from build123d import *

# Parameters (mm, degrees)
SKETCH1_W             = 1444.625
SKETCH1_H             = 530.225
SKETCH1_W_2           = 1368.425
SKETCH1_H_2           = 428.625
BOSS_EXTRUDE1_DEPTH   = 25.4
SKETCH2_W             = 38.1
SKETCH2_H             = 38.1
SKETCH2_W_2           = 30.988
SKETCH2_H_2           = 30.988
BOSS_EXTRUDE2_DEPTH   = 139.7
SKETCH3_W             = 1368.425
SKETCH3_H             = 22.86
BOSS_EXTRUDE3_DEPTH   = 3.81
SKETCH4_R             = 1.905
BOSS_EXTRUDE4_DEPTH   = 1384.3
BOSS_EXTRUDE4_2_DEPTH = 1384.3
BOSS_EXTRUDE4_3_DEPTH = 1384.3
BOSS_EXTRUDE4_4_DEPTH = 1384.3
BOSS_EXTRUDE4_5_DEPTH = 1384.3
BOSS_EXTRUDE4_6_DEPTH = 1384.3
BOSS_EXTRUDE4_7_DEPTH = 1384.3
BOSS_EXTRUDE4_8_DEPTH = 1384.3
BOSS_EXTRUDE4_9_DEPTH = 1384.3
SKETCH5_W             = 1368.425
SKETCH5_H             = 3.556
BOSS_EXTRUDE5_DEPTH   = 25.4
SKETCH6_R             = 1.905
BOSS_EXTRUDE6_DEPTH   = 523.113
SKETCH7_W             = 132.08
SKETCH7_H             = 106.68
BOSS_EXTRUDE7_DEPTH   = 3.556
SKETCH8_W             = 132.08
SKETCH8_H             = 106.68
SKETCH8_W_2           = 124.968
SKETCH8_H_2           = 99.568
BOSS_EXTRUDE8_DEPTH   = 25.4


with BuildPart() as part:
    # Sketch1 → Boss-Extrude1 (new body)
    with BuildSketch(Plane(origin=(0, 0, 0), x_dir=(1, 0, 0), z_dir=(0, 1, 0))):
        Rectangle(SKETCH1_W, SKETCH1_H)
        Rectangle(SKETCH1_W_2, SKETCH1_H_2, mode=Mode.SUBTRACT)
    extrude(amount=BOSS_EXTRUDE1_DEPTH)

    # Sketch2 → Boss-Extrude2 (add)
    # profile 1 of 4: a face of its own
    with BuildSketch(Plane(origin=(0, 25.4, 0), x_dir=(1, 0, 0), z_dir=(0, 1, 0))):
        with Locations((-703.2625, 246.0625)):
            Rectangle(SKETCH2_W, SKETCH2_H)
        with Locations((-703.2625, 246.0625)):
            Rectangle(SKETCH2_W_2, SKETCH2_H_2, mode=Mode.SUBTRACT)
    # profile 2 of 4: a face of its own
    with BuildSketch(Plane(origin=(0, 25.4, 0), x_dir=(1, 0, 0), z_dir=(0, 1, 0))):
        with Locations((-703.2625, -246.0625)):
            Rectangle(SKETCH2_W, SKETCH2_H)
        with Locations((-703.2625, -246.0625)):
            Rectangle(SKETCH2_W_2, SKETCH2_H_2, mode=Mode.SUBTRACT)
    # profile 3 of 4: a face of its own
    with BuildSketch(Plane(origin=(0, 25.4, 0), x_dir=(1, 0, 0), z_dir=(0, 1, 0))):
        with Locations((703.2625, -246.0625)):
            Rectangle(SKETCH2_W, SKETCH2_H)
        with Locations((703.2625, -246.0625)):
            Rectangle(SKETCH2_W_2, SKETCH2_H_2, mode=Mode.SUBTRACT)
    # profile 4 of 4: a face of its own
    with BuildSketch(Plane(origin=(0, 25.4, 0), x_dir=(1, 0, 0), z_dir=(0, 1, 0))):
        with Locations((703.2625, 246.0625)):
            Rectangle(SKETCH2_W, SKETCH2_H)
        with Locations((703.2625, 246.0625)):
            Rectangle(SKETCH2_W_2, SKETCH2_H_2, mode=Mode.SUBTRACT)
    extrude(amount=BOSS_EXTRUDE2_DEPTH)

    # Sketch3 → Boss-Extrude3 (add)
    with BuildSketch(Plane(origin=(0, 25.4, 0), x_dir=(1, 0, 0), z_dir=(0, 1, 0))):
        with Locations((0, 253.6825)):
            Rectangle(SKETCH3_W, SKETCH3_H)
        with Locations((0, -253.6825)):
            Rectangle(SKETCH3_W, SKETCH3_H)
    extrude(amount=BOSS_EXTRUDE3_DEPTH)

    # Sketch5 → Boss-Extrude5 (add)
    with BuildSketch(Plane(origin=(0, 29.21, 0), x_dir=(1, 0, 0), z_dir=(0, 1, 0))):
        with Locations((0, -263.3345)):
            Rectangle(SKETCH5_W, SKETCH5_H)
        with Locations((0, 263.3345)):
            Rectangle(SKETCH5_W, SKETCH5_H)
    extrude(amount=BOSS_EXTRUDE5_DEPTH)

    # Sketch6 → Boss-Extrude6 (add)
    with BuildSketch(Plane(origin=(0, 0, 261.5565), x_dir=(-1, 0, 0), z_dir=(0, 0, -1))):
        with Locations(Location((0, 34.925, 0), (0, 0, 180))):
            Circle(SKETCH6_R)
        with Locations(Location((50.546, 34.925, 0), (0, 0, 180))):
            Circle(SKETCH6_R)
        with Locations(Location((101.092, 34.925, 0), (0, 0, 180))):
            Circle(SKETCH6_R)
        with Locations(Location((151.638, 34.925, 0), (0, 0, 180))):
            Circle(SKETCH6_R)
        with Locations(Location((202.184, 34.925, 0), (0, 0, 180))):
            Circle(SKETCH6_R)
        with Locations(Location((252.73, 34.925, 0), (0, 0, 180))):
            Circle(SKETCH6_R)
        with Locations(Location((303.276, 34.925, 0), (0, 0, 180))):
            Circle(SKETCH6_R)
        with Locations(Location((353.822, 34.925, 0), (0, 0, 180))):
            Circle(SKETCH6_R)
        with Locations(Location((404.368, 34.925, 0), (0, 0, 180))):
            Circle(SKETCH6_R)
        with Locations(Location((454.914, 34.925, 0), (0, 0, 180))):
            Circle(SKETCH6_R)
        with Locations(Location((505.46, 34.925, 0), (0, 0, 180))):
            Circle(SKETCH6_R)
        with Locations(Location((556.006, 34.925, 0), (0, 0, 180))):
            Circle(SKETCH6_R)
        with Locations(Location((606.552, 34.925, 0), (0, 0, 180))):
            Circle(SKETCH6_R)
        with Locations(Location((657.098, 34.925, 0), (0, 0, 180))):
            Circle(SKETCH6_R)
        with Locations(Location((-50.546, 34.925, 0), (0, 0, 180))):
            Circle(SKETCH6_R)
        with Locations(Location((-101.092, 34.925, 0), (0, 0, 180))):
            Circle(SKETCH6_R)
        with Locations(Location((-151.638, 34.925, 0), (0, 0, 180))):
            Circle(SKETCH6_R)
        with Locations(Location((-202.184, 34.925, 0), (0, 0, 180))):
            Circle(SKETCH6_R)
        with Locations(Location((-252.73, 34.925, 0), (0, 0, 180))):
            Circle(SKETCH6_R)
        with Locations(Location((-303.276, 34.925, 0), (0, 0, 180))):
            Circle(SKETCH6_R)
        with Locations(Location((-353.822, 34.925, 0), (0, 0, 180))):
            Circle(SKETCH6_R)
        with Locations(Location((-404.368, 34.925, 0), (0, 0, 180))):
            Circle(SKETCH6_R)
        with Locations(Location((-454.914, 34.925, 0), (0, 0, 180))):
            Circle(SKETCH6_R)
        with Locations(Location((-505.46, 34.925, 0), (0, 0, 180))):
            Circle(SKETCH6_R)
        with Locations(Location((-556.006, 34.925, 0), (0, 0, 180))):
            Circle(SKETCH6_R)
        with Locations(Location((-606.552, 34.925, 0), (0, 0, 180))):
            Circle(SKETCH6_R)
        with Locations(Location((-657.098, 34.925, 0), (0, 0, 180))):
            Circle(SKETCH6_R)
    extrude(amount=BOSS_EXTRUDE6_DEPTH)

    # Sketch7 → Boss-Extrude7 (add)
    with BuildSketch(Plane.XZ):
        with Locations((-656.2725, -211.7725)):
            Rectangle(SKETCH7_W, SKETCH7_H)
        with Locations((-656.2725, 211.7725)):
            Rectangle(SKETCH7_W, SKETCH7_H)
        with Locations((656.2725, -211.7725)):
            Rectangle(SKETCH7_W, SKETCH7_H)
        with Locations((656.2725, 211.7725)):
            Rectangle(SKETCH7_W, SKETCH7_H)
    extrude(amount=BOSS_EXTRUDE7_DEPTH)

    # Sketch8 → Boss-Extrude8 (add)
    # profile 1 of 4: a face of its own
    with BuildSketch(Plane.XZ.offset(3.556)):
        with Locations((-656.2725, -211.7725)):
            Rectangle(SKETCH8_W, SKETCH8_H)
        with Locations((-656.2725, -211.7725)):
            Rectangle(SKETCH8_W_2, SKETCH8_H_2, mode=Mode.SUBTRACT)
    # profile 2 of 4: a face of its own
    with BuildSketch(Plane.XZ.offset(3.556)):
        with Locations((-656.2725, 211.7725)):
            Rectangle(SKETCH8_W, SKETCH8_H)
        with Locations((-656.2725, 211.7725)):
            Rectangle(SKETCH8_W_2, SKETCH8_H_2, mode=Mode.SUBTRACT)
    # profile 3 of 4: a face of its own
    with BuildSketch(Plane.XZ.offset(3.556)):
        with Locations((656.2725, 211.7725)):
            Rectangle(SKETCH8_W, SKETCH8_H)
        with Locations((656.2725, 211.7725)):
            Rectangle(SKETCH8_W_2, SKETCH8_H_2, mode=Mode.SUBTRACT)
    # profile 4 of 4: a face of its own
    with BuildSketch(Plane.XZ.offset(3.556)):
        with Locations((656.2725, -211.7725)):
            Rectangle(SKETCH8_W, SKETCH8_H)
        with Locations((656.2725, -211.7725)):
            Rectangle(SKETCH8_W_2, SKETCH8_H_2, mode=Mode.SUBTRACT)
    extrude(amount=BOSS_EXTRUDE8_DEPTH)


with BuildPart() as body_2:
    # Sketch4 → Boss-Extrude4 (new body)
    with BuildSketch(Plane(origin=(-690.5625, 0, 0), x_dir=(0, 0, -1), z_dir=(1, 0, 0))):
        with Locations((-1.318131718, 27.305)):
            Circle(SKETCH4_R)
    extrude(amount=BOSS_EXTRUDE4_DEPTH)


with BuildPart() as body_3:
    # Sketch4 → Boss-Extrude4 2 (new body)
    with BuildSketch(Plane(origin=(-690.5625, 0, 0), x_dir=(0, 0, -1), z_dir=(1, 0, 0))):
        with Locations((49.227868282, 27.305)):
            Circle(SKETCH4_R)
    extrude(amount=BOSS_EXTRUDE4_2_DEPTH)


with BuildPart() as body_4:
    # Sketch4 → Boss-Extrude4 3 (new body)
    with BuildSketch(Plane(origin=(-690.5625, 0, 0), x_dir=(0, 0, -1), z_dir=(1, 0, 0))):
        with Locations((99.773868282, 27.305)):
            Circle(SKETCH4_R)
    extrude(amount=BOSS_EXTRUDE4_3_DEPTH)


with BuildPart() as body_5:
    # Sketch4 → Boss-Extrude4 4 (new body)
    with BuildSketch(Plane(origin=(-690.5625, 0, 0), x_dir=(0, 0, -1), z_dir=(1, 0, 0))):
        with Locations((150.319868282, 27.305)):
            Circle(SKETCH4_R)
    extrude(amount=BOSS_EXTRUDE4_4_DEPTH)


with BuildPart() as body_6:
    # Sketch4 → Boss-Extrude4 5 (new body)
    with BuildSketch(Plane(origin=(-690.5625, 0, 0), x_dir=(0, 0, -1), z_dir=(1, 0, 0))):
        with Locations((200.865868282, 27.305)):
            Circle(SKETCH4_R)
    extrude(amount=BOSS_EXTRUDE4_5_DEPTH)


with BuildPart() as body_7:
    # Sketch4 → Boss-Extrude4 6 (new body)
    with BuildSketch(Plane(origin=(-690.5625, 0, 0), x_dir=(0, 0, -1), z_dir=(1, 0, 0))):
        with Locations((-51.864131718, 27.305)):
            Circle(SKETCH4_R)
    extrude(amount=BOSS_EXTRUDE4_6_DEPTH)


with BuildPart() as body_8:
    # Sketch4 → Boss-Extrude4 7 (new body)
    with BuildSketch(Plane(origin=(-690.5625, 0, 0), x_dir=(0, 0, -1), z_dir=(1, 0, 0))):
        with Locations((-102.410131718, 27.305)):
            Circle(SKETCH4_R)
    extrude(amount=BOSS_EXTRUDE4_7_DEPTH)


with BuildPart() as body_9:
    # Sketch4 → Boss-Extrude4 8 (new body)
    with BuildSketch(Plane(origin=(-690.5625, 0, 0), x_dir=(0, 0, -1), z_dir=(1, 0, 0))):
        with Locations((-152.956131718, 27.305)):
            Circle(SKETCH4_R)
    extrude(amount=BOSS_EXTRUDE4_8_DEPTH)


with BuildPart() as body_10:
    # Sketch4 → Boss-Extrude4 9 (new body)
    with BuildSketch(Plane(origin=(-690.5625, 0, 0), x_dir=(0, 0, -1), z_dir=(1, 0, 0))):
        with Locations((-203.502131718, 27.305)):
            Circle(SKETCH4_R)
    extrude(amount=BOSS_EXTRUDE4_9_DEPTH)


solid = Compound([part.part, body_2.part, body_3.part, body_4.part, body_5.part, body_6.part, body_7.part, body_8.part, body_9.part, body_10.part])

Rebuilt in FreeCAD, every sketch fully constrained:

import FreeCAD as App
import Part
import Sketcher

V = App.Vector
Q = App.Units.Quantity


def add_polygon(sketch, points):
    """Adds a closed chain of lines whose ends are joined by coincident constraints."""
    first, n = sketch.GeometryCount, len(points)
    for a, b in zip(points, points[1:] + points[:1]):
        sketch.addGeometry(Part.LineSegment(App.Vector(*a, 0), App.Vector(*b, 0)), False)
    for i in range(n):
        sketch.addConstraint(Sketcher.Constraint("Coincident", first + i, 2, first + (i + 1) % n, 1))

doc = App.newDocument("Part")
body = doc.addObject("PartDesign::Body", "Body")

sketch1 = body.newObject("Sketcher::SketchObject", "Sketch")
sketch1.AttachmentSupport = (doc.getObject("XZ_Plane"), [""])
sketch1.MapMode = "FlatFace"
add_polygon(sketch1, [(-722, -265), (-722, 265), (722, 265), (722, -265)])
add_polygon(sketch1, [(684, 214), (-684, 214), (-684, -214), (684, -214)])
sketch1.addConstraint(Sketcher.Constraint("Vertical", 0))
sketch1.addConstraint(Sketcher.Constraint("Horizontal", 1))
sketch1.addConstraint(Sketcher.Constraint("Vertical", 2))
sketch1.addConstraint(Sketcher.Constraint("Horizontal", 3))
sketch1.addConstraint(Sketcher.Constraint("Horizontal", 4))
sketch1.addConstraint(Sketcher.Constraint("Vertical", 5))
sketch1.addConstraint(Sketcher.Constraint("Horizontal", 6))
sketch1.addConstraint(Sketcher.Constraint("Vertical", 7))
sketch1.addConstraint(Sketcher.Constraint("Symmetric", 0, 2, 2, 2, -1, 1))
sketch1.addConstraint(Sketcher.Constraint("Symmetric", 4, 2, 6, 2, -1, 1))
sketch1.addConstraint(Sketcher.Constraint("DistanceY", 4, 2, 0, 2, Q("2 in")))
sketch1.addConstraint(Sketcher.Constraint("DistanceX", 0, 2, 4, 2, Q("1.5 in")))
sketch1.addConstraint(Sketcher.Constraint("DistanceX", 1, 1, 1, 2, Q("56.875 in")))
sketch1.addConstraint(Sketcher.Constraint("DistanceY", 0, 1, 0, 2, Q("20.875 in")))
pad1 = body.newObject("PartDesign::Pad", "Pad")
pad1.Profile = sketch1
pad1.Length = Q("1 in")
pad1.Reversed = True

sketch2 = body.newObject("Sketcher::SketchObject", "Sketch001")
sketch2.AttachmentSupport = (doc.getObject("XZ_Plane"), [""])
sketch2.MapMode = "FlatFace"
sketch2.AttachmentOffset = App.Placement(V(0, 0, -1 * 25.4), App.Rotation())
add_polygon(sketch2, [(-722, -265), (-722, -227), (-684, -227), (-684, -265)])
add_polygon(sketch2, [(-688, -231), (-719, -231), (-719, -262), (-688, -262)])
add_polygon(sketch2, [(-722, 227), (-722, 265), (-684, 265), (-684, 227)])
add_polygon(sketch2, [(-688, 262), (-719, 262), (-719, 231), (-688, 231)])
add_polygon(sketch2, [(684, 227), (684, 265), (722, 265), (722, 227)])
add_polygon(sketch2, [(719, 262), (688, 262), (688, 231), (719, 231)])
add_polygon(sketch2, [(684, -265), (684, -227), (722, -227), (722, -265)])
add_polygon(sketch2, [(719, -231), (688, -231), (688, -262), (719, -262)])
sketch2.addConstraint(Sketcher.Constraint("Vertical", 0))
sketch2.addConstraint(Sketcher.Constraint("Horizontal", 1))
sketch2.addConstraint(Sketcher.Constraint("Vertical", 2))
sketch2.addConstraint(Sketcher.Constraint("Horizontal", 3))
sketch2.addConstraint(Sketcher.Constraint("Horizontal", 4))
sketch2.addConstraint(Sketcher.Constraint("Vertical", 5))
sketch2.addConstraint(Sketcher.Constraint("Horizontal", 6))
sketch2.addConstraint(Sketcher.Constraint("Vertical", 7))
sketch2.addConstraint(Sketcher.Constraint("Vertical", 8))
sketch2.addConstraint(Sketcher.Constraint("Horizontal", 9))
sketch2.addConstraint(Sketcher.Constraint("Vertical", 10))
sketch2.addConstraint(Sketcher.Constraint("Horizontal", 11))
sketch2.addConstraint(Sketcher.Constraint("Horizontal", 12))
sketch2.addConstraint(Sketcher.Constraint("Vertical", 13))
sketch2.addConstraint(Sketcher.Constraint("Horizontal", 14))
sketch2.addConstraint(Sketcher.Constraint("Vertical", 15))
sketch2.addConstraint(Sketcher.Constraint("Vertical", 16))
sketch2.addConstraint(Sketcher.Constraint("Horizontal", 17))
sketch2.addConstraint(Sketcher.Constraint("Vertical", 18))
sketch2.addConstraint(Sketcher.Constraint("Horizontal", 19))
sketch2.addConstraint(Sketcher.Constraint("Horizontal", 20))
sketch2.addConstraint(Sketcher.Constraint("Vertical", 21))
sketch2.addConstraint(Sketcher.Constraint("Horizontal", 22))
sketch2.addConstraint(Sketcher.Constraint("Vertical", 23))
sketch2.addConstraint(Sketcher.Constraint("Vertical", 24))
sketch2.addConstraint(Sketcher.Constraint("Horizontal", 25))
sketch2.addConstraint(Sketcher.Constraint("Vertical", 26))
sketch2.addConstraint(Sketcher.Constraint("Horizontal", 27))
sketch2.addConstraint(Sketcher.Constraint("Horizontal", 28))
sketch2.addConstraint(Sketcher.Constraint("Vertical", 29))
sketch2.addConstraint(Sketcher.Constraint("Horizontal", 30))
sketch2.addConstraint(Sketcher.Constraint("Vertical", 31))
sketch2.addConstraint(Sketcher.Constraint("Symmetric", 2, 2, 16, 2, -1, 1))
sketch2.addConstraint(Sketcher.Constraint("Symmetric", 0, 2, 18, 2, -1, 1))
sketch2.addConstraint(Sketcher.Constraint("Symmetric", 6, 2, 20, 2, -1, 1))
sketch2.addConstraint(Sketcher.Constraint("Symmetric", 4, 2, 22, 2, -1, 1))
sketch2.addConstraint(Sketcher.Constraint("Symmetric", 10, 2, 24, 2, -1, 1))
sketch2.addConstraint(Sketcher.Constraint("Symmetric", 8, 2, 26, 2, -1, 1))
sketch2.addConstraint(Sketcher.Constraint("Symmetric", 14, 2, 28, 2, -1, 1))
sketch2.addConstraint(Sketcher.Constraint("Symmetric", 12, 2, 30, 2, -1, 1))
sketch2.addConstraint(Sketcher.Constraint("Symmetric", 9, 2, 16, 2, -2))
sketch2.addConstraint(Sketcher.Constraint("Symmetric", 11, 2, 18, 2, -2))
sketch2.addConstraint(Sketcher.Constraint("Symmetric", 15, 2, 20, 2, -2))
sketch2.addConstraint(Sketcher.Constraint("Symmetric", 13, 2, 22, 2, -2))
sketch2.addConstraint(Sketcher.Constraint("Equal", 27, 0))
sketch2.addConstraint(Sketcher.Constraint("Equal", 30, 5))
sketch2.addConstraint(Sketcher.Constraint("DistanceX", 1, 1, 1, 2, Q("1.5 in")))
sketch2.addConstraint(Sketcher.Constraint("DistanceX", 4, 2, 4, 1, Q("1.22 in")))
sketch2.addConstraint(Sketcher.Constraint("DistanceX", 0, 2, 4, 2, Q("0.14 in")))
sketch2.addConstraint(Sketcher.Constraint("DistanceY", 4, 2, 0, 2, Q("0.14 in")))
sketch2.addConstraint(Sketcher.Constraint("DistanceX", 0, 2, -1, 1, Q("28.4375 in")))
sketch2.addConstraint(Sketcher.Constraint("DistanceY", 0, 2, -1, 1, Q("8.9375 in")))
pad2 = body.newObject("PartDesign::Pad", "Pad001")
pad2.Profile = sketch2
pad2.Length = Q("5.5 in")
pad2.Reversed = True

sketch3 = body.newObject("Sketcher::SketchObject", "Sketch002")
sketch3.AttachmentSupport = (doc.getObject("XZ_Plane"), [""])
sketch3.MapMode = "FlatFace"
sketch3.AttachmentOffset = App.Placement(V(0, 0, -1 * 25.4), App.Rotation())
add_polygon(sketch3, [(-684, -265), (-684, -242), (684, -242), (684, -265)])
add_polygon(sketch3, [(-684, 242), (-684, 265), (684, 265), (684, 242)])
sketch3.addConstraint(Sketcher.Constraint("Vertical", 0))
sketch3.addConstraint(Sketcher.Constraint("Horizontal", 1))
sketch3.addConstraint(Sketcher.Constraint("Vertical", 2))
sketch3.addConstraint(Sketcher.Constraint("Horizontal", 3))
sketch3.addConstraint(Sketcher.Constraint("Vertical", 4))
sketch3.addConstraint(Sketcher.Constraint("Horizontal", 5))
sketch3.addConstraint(Sketcher.Constraint("Vertical", 6))
sketch3.addConstraint(Sketcher.Constraint("Horizontal", 7))
sketch3.addConstraint(Sketcher.Constraint("Symmetric", 2, 2, 4, 2, -1, 1))
sketch3.addConstraint(Sketcher.Constraint("Symmetric", 0, 2, 6, 2, -1, 1))
sketch3.addConstraint(Sketcher.Constraint("Vertical", 3, 2, 4, 2))
sketch3.addConstraint(Sketcher.Constraint("DistanceY", 0, 1, 0, 2, Q("0.9 in")))
sketch3.addConstraint(Sketcher.Constraint("DistanceX", 1, 1, 1, 2, Q("53.875 in")))
sketch3.addConstraint(Sketcher.Constraint("DistanceY", 2, 2, -1, 1, Q("10.4375 in")))
pad3 = body.newObject("PartDesign::Pad", "Pad002")
pad3.Profile = sketch3
pad3.Length = Q("0.15 in")
pad3.Reversed = True

sketch4 = body.newObject("Sketcher::SketchObject", "Sketch003")
sketch4.AttachmentSupport = (doc.getObject("XZ_Plane"), [""])
sketch4.MapMode = "FlatFace"
sketch4.AttachmentOffset = App.Placement(V(0, 0, -1.15 * 25.4), App.Rotation())
add_polygon(sketch4, [(-684.2, 261.6), (-684.2, 265.1), (684.2, 265.1), (684.2, 261.6)])
add_polygon(sketch4, [(-684.2, -265.1), (-684.2, -261.6), (684.2, -261.6), (684.2, -265.1)])
sketch4.addConstraint(Sketcher.Constraint("Vertical", 0))
sketch4.addConstraint(Sketcher.Constraint("Horizontal", 1))
sketch4.addConstraint(Sketcher.Constraint("Vertical", 2))
sketch4.addConstraint(Sketcher.Constraint("Horizontal", 3))
sketch4.addConstraint(Sketcher.Constraint("Vertical", 4))
sketch4.addConstraint(Sketcher.Constraint("Horizontal", 5))
sketch4.addConstraint(Sketcher.Constraint("Vertical", 6))
sketch4.addConstraint(Sketcher.Constraint("Horizontal", 7))
sketch4.addConstraint(Sketcher.Constraint("Symmetric", 2, 2, 4, 2, -1, 1))
sketch4.addConstraint(Sketcher.Constraint("Symmetric", 0, 2, 6, 2, -1, 1))
sketch4.addConstraint(Sketcher.Constraint("Vertical", 3, 2, 4, 2))
sketch4.addConstraint(Sketcher.Constraint("DistanceY", 0, 1, 0, 2, Q("0.14 in")))
sketch4.addConstraint(Sketcher.Constraint("DistanceX", 1, 1, 1, 2, Q("53.875 in")))
sketch4.addConstraint(Sketcher.Constraint("DistanceY", -1, 1, 0, 2, Q("10.4375 in")))
pad4 = body.newObject("PartDesign::Pad", "Pad003")
pad4.Profile = sketch4
pad4.Length = Q("1 in")
pad4.Reversed = True

sketch5 = body.newObject("Sketcher::SketchObject", "Sketch004")
sketch5.AttachmentSupport = (doc.getObject("XY_Plane"), [""])
sketch5.MapMode = "FlatFace"
sketch5.AttachmentOffset = App.Placement(V(0, 0, 10.2975 * 25.4), App.Rotation())
sketch5.addGeometry(Part.Circle(V(0, 34.9, 0), V(0, 0, 1), 1.9), False)
sketch5.addGeometry(Part.Circle(V(-50.5, 34.9, 0), V(0, 0, 1), 1.9), False)
sketch5.addGeometry(Part.Circle(V(-101.1, 34.9, 0), V(0, 0, 1), 1.9), False)
sketch5.addGeometry(Part.Circle(V(-151.6, 34.9, 0), V(0, 0, 1), 1.9), False)
sketch5.addGeometry(Part.Circle(V(-202.2, 34.9, 0), V(0, 0, 1), 1.9), False)
sketch5.addGeometry(Part.Circle(V(-252.7, 34.9, 0), V(0, 0, 1), 1.9), False)
sketch5.addGeometry(Part.Circle(V(-303.3, 34.9, 0), V(0, 0, 1), 1.9), False)
sketch5.addGeometry(Part.Circle(V(-353.8, 34.9, 0), V(0, 0, 1), 1.9), False)
sketch5.addGeometry(Part.Circle(V(-404.4, 34.9, 0), V(0, 0, 1), 1.9), False)
sketch5.addGeometry(Part.Circle(V(-454.9, 34.9, 0), V(0, 0, 1), 1.9), False)
sketch5.addGeometry(Part.Circle(V(-505.5, 34.9, 0), V(0, 0, 1), 1.9), False)
sketch5.addGeometry(Part.Circle(V(-556, 34.9, 0), V(0, 0, 1), 1.9), False)
sketch5.addGeometry(Part.Circle(V(-606.6, 34.9, 0), V(0, 0, 1), 1.9), False)
sketch5.addGeometry(Part.Circle(V(-657.1, 34.9, 0), V(0, 0, 1), 1.9), False)
sketch5.addGeometry(Part.Circle(V(50.5, 34.9, 0), V(0, 0, 1), 1.9), False)
sketch5.addGeometry(Part.Circle(V(101.1, 34.9, 0), V(0, 0, 1), 1.9), False)
sketch5.addGeometry(Part.Circle(V(151.6, 34.9, 0), V(0, 0, 1), 1.9), False)
sketch5.addGeometry(Part.Circle(V(202.2, 34.9, 0), V(0, 0, 1), 1.9), False)
sketch5.addGeometry(Part.Circle(V(252.7, 34.9, 0), V(0, 0, 1), 1.9), False)
sketch5.addGeometry(Part.Circle(V(303.3, 34.9, 0), V(0, 0, 1), 1.9), False)
sketch5.addGeometry(Part.Circle(V(353.8, 34.9, 0), V(0, 0, 1), 1.9), False)
sketch5.addGeometry(Part.Circle(V(404.4, 34.9, 0), V(0, 0, 1), 1.9), False)
sketch5.addGeometry(Part.Circle(V(454.9, 34.9, 0), V(0, 0, 1), 1.9), False)
sketch5.addGeometry(Part.Circle(V(505.5, 34.9, 0), V(0, 0, 1), 1.9), False)
sketch5.addGeometry(Part.Circle(V(556, 34.9, 0), V(0, 0, 1), 1.9), False)
sketch5.addGeometry(Part.Circle(V(606.6, 34.9, 0), V(0, 0, 1), 1.9), False)
sketch5.addGeometry(Part.Circle(V(657.1, 34.9, 0), V(0, 0, 1), 1.9), False)
sketch5.addConstraint(Sketcher.Constraint("Equal", 0, 1))
sketch5.addConstraint(Sketcher.Constraint("Equal", 1, 2))
sketch5.addConstraint(Sketcher.Constraint("Equal", 2, 3))
sketch5.addConstraint(Sketcher.Constraint("Equal", 3, 4))
sketch5.addConstraint(Sketcher.Constraint("Equal", 4, 5))
sketch5.addConstraint(Sketcher.Constraint("Equal", 5, 6))
sketch5.addConstraint(Sketcher.Constraint("Equal", 6, 7))
sketch5.addConstraint(Sketcher.Constraint("Equal", 7, 8))
sketch5.addConstraint(Sketcher.Constraint("Equal", 8, 9))
sketch5.addConstraint(Sketcher.Constraint("Equal", 9, 10))
sketch5.addConstraint(Sketcher.Constraint("Equal", 10, 11))
sketch5.addConstraint(Sketcher.Constraint("Equal", 11, 12))
sketch5.addConstraint(Sketcher.Constraint("Equal", 12, 13))
sketch5.addConstraint(Sketcher.Constraint("Equal", 13, 14))
sketch5.addConstraint(Sketcher.Constraint("Equal", 14, 15))
sketch5.addConstraint(Sketcher.Constraint("Equal", 15, 16))
sketch5.addConstraint(Sketcher.Constraint("Equal", 16, 17))
sketch5.addConstraint(Sketcher.Constraint("Equal", 17, 18))
sketch5.addConstraint(Sketcher.Constraint("Equal", 18, 19))
sketch5.addConstraint(Sketcher.Constraint("Equal", 19, 20))
sketch5.addConstraint(Sketcher.Constraint("Equal", 20, 21))
sketch5.addConstraint(Sketcher.Constraint("Equal", 21, 22))
sketch5.addConstraint(Sketcher.Constraint("Equal", 22, 23))
sketch5.addConstraint(Sketcher.Constraint("Equal", 23, 24))
sketch5.addConstraint(Sketcher.Constraint("Equal", 24, 25))
sketch5.addConstraint(Sketcher.Constraint("Equal", 25, 26))
sketch5.addConstraint(Sketcher.Constraint("Symmetric", 1, 3, 14, 3, -2))
sketch5.addConstraint(Sketcher.Constraint("Symmetric", 2, 3, 15, 3, -2))
sketch5.addConstraint(Sketcher.Constraint("Symmetric", 3, 3, 16, 3, -2))
sketch5.addConstraint(Sketcher.Constraint("Symmetric", 4, 3, 17, 3, -2))
sketch5.addConstraint(Sketcher.Constraint("Symmetric", 5, 3, 18, 3, -2))
sketch5.addConstraint(Sketcher.Constraint("Symmetric", 6, 3, 19, 3, -2))
sketch5.addConstraint(Sketcher.Constraint("Symmetric", 7, 3, 20, 3, -2))
sketch5.addConstraint(Sketcher.Constraint("Symmetric", 8, 3, 21, 3, -2))
sketch5.addConstraint(Sketcher.Constraint("Symmetric", 9, 3, 22, 3, -2))
sketch5.addConstraint(Sketcher.Constraint("Symmetric", 10, 3, 23, 3, -2))
sketch5.addConstraint(Sketcher.Constraint("Symmetric", 11, 3, 24, 3, -2))
sketch5.addConstraint(Sketcher.Constraint("Symmetric", 12, 3, 25, 3, -2))
sketch5.addConstraint(Sketcher.Constraint("Symmetric", 13, 3, 26, 3, -2))
sketch5.addConstraint(Sketcher.Constraint("PointOnObject", 0, 3, -2))
sketch5.addConstraint(Sketcher.Constraint("Horizontal", 0, 3, 1, 3))
sketch5.addConstraint(Sketcher.Constraint("Horizontal", 1, 3, 2, 3))
sketch5.addConstraint(Sketcher.Constraint("Horizontal", 2, 3, 3, 3))
sketch5.addConstraint(Sketcher.Constraint("Horizontal", 3, 3, 4, 3))
sketch5.addConstraint(Sketcher.Constraint("Horizontal", 4, 3, 5, 3))
sketch5.addConstraint(Sketcher.Constraint("Horizontal", 5, 3, 6, 3))
sketch5.addConstraint(Sketcher.Constraint("Horizontal", 6, 3, 7, 3))
sketch5.addConstraint(Sketcher.Constraint("Horizontal", 7, 3, 8, 3))
sketch5.addConstraint(Sketcher.Constraint("Horizontal", 8, 3, 9, 3))
sketch5.addConstraint(Sketcher.Constraint("Horizontal", 9, 3, 10, 3))
sketch5.addConstraint(Sketcher.Constraint("Horizontal", 10, 3, 11, 3))
sketch5.addConstraint(Sketcher.Constraint("Horizontal", 11, 3, 12, 3))
sketch5.addConstraint(Sketcher.Constraint("Horizontal", 12, 3, 13, 3))
sketch5.addConstraint(Sketcher.Constraint("Diameter", 0, Q("0.15 in")))
sketch5.addConstraint(Sketcher.Constraint("DistanceX", 10, 3, -1, 1, Q("19.9 in")))
sketch5.addConstraint(Sketcher.Constraint("DistanceX", 1, 3, -1, 1, Q("1.99 in")))
sketch5.addConstraint(Sketcher.Constraint("DistanceX", 2, 3, -1, 1, Q("3.98 in")))
sketch5.addConstraint(Sketcher.Constraint("DistanceX", 3, 3, -1, 1, Q("5.97 in")))
sketch5.addConstraint(Sketcher.Constraint("DistanceX", 4, 3, -1, 1, Q("7.96 in")))
sketch5.addConstraint(Sketcher.Constraint("DistanceX", 5, 3, -1, 1, Q("9.95 in")))
sketch5.addConstraint(Sketcher.Constraint("DistanceX", 6, 3, -1, 1, Q("11.94 in")))
sketch5.addConstraint(Sketcher.Constraint("DistanceX", 7, 3, -1, 1, Q("13.93 in")))
sketch5.addConstraint(Sketcher.Constraint("DistanceX", 8, 3, -1, 1, Q("15.92 in")))
sketch5.addConstraint(Sketcher.Constraint("DistanceX", 9, 3, -1, 1, Q("17.91 in")))
sketch5.addConstraint(Sketcher.Constraint("DistanceX", 11, 3, -1, 1, Q("21.89 in")))
sketch5.addConstraint(Sketcher.Constraint("DistanceX", 12, 3, -1, 1, Q("23.88 in")))
sketch5.addConstraint(Sketcher.Constraint("DistanceX", 13, 3, -1, 1, Q("25.87 in")))
sketch5.addConstraint(Sketcher.Constraint("DistanceY", -1, 1, 0, 3, Q("1.375 in")))
pad5 = body.newObject("PartDesign::Pad", "Pad004")
pad5.Profile = sketch5
pad5.Length = Q("20.595 in")
pad5.Reversed = True

sketch6 = body.newObject("Sketcher::SketchObject", "Sketch005")
sketch6.AttachmentSupport = (doc.getObject("XZ_Plane"), [""])
sketch6.MapMode = "FlatFace"
add_polygon(sketch6, [(-722, -158), (-722, -265), (-590, -265), (-590, -158)])
add_polygon(sketch6, [(-722, 265), (-722, 158), (-590, 158), (-590, 265)])
add_polygon(sketch6, [(590, -158), (590, -265), (722, -265), (722, -158)])
add_polygon(sketch6, [(590, 265), (590, 158), (722, 158), (722, 265)])
sketch6.addConstraint(Sketcher.Constraint("Vertical", 0))
sketch6.addConstraint(Sketcher.Constraint("Horizontal", 1))
sketch6.addConstraint(Sketcher.Constraint("Vertical", 2))
sketch6.addConstraint(Sketcher.Constraint("Horizontal", 3))
sketch6.addConstraint(Sketcher.Constraint("Vertical", 4))
sketch6.addConstraint(Sketcher.Constraint("Horizontal", 5))
sketch6.addConstraint(Sketcher.Constraint("Vertical", 6))
sketch6.addConstraint(Sketcher.Constraint("Horizontal", 7))
sketch6.addConstraint(Sketcher.Constraint("Vertical", 8))
sketch6.addConstraint(Sketcher.Constraint("Horizontal", 9))
sketch6.addConstraint(Sketcher.Constraint("Vertical", 10))
sketch6.addConstraint(Sketcher.Constraint("Horizontal", 11))
sketch6.addConstraint(Sketcher.Constraint("Vertical", 12))
sketch6.addConstraint(Sketcher.Constraint("Horizontal", 13))
sketch6.addConstraint(Sketcher.Constraint("Vertical", 14))
sketch6.addConstraint(Sketcher.Constraint("Horizontal", 15))
sketch6.addConstraint(Sketcher.Constraint("Symmetric", 6, 2, 8, 2, -1, 1))
sketch6.addConstraint(Sketcher.Constraint("Symmetric", 4, 2, 10, 2, -1, 1))
sketch6.addConstraint(Sketcher.Constraint("Symmetric", 2, 2, 12, 2, -1, 1))
sketch6.addConstraint(Sketcher.Constraint("Symmetric", 0, 2, 14, 2, -1, 1))
sketch6.addConstraint(Sketcher.Constraint("Symmetric", 1, 2, 8, 2, -2))
sketch6.addConstraint(Sketcher.Constraint("Symmetric", 3, 2, 10, 2, -2))
sketch6.addConstraint(Sketcher.Constraint("DistanceX", 1, 1, 1, 2, Q("5.2 in")))
sketch6.addConstraint(Sketcher.Constraint("DistanceY", 0, 2, 0, 1, Q("4.2 in")))
sketch6.addConstraint(Sketcher.Constraint("DistanceX", 0, 2, -1, 1, Q("28.4375 in")))
sketch6.addConstraint(Sketcher.Constraint("DistanceY", 0, 2, -1, 1, Q("10.4375 in")))
pad6 = body.newObject("PartDesign::Pad", "Pad005")
pad6.Profile = sketch6
pad6.Length = Q("0.14 in")

sketch7 = body.newObject("Sketcher::SketchObject", "Sketch006")
sketch7.AttachmentSupport = (doc.getObject("XZ_Plane"), [""])
sketch7.MapMode = "FlatFace"
sketch7.AttachmentOffset = App.Placement(V(0, 0, 0.14 * 25.4), App.Rotation())
add_polygon(sketch7, [(-722, -158), (-722, -265), (-590, -265), (-590, -158)])
add_polygon(sketch7, [(-594, -262), (-719, -262), (-719, -162), (-594, -162)])
add_polygon(sketch7, [(-722, 265), (-722, 158), (-590, 158), (-590, 265)])
add_polygon(sketch7, [(-594, 162), (-719, 162), (-719, 262), (-594, 262)])
add_polygon(sketch7, [(590, 265), (590, 158), (722, 158), (722, 265)])
add_polygon(sketch7, [(719, 162), (594, 162), (594, 262), (719, 262)])
add_polygon(sketch7, [(590, -158), (590, -265), (722, -265), (722, -158)])
add_polygon(sketch7, [(719, -262), (594, -262), (594, -162), (719, -162)])
sketch7.addConstraint(Sketcher.Constraint("Vertical", 0))
sketch7.addConstraint(Sketcher.Constraint("Horizontal", 1))
sketch7.addConstraint(Sketcher.Constraint("Vertical", 2))
sketch7.addConstraint(Sketcher.Constraint("Horizontal", 3))
sketch7.addConstraint(Sketcher.Constraint("Horizontal", 4))
sketch7.addConstraint(Sketcher.Constraint("Vertical", 5))
sketch7.addConstraint(Sketcher.Constraint("Horizontal", 6))
sketch7.addConstraint(Sketcher.Constraint("Vertical", 7))
sketch7.addConstraint(Sketcher.Constraint("Vertical", 8))
sketch7.addConstraint(Sketcher.Constraint("Horizontal", 9))
sketch7.addConstraint(Sketcher.Constraint("Vertical", 10))
sketch7.addConstraint(Sketcher.Constraint("Horizontal", 11))
sketch7.addConstraint(Sketcher.Constraint("Horizontal", 12))
sketch7.addConstraint(Sketcher.Constraint("Vertical", 13))
sketch7.addConstraint(Sketcher.Constraint("Horizontal", 14))
sketch7.addConstraint(Sketcher.Constraint("Vertical", 15))
sketch7.addConstraint(Sketcher.Constraint("Vertical", 16))
sketch7.addConstraint(Sketcher.Constraint("Horizontal", 17))
sketch7.addConstraint(Sketcher.Constraint("Vertical", 18))
sketch7.addConstraint(Sketcher.Constraint("Horizontal", 19))
sketch7.addConstraint(Sketcher.Constraint("Horizontal", 20))
sketch7.addConstraint(Sketcher.Constraint("Vertical", 21))
sketch7.addConstraint(Sketcher.Constraint("Horizontal", 22))
sketch7.addConstraint(Sketcher.Constraint("Vertical", 23))
sketch7.addConstraint(Sketcher.Constraint("Vertical", 24))
sketch7.addConstraint(Sketcher.Constraint("Horizontal", 25))
sketch7.addConstraint(Sketcher.Constraint("Vertical", 26))
sketch7.addConstraint(Sketcher.Constraint("Horizontal", 27))
sketch7.addConstraint(Sketcher.Constraint("Horizontal", 28))
sketch7.addConstraint(Sketcher.Constraint("Vertical", 29))
sketch7.addConstraint(Sketcher.Constraint("Horizontal", 30))
sketch7.addConstraint(Sketcher.Constraint("Vertical", 31))
sketch7.addConstraint(Sketcher.Constraint("Symmetric", 2, 2, 16, 2, -1, 1))
sketch7.addConstraint(Sketcher.Constraint("Symmetric", 0, 2, 18, 2, -1, 1))
sketch7.addConstraint(Sketcher.Constraint("Symmetric", 6, 2, 20, 2, -1, 1))
sketch7.addConstraint(Sketcher.Constraint("Symmetric", 4, 2, 22, 2, -1, 1))
sketch7.addConstraint(Sketcher.Constraint("Symmetric", 10, 2, 24, 2, -1, 1))
sketch7.addConstraint(Sketcher.Constraint("Symmetric", 8, 2, 26, 2, -1, 1))
sketch7.addConstraint(Sketcher.Constraint("Symmetric", 14, 2, 28, 2, -1, 1))
sketch7.addConstraint(Sketcher.Constraint("Symmetric", 12, 2, 30, 2, -1, 1))
sketch7.addConstraint(Sketcher.Constraint("Symmetric", 9, 2, 16, 2, -2))
sketch7.addConstraint(Sketcher.Constraint("Symmetric", 11, 2, 18, 2, -2))
sketch7.addConstraint(Sketcher.Constraint("Symmetric", 15, 2, 20, 2, -2))
sketch7.addConstraint(Sketcher.Constraint("Symmetric", 13, 2, 22, 2, -2))
sketch7.addConstraint(Sketcher.Constraint("DistanceX", 1, 1, 1, 2, Q("5.2 in")))
sketch7.addConstraint(Sketcher.Constraint("DistanceY", 0, 2, 0, 1, Q("4.2 in")))
sketch7.addConstraint(Sketcher.Constraint("DistanceX", 4, 2, 4, 1, Q("4.92 in")))
sketch7.addConstraint(Sketcher.Constraint("DistanceY", 5, 1, 5, 2, Q("3.92 in")))
sketch7.addConstraint(Sketcher.Constraint("DistanceX", 0, 2, 4, 2, Q("0.14 in")))
sketch7.addConstraint(Sketcher.Constraint("DistanceY", 0, 2, 4, 2, Q("0.14 in")))
sketch7.addConstraint(Sketcher.Constraint("DistanceX", 0, 2, -1, 1, Q("28.4375 in")))
sketch7.addConstraint(Sketcher.Constraint("DistanceY", 0, 2, -1, 1, Q("10.4375 in")))
pad7 = body.newObject("PartDesign::Pad", "Pad006")
pad7.Profile = sketch7
pad7.Length = Q("1 in")
body2 = doc.addObject("PartDesign::Body", "Body001")

sketch8 = body2.newObject("Sketcher::SketchObject", "Sketch007")
sketch8.AttachmentSupport = (doc.getObject("YZ_Plane001"), [""])
sketch8.MapMode = "FlatFace"
sketch8.AttachmentOffset = App.Placement(V(0, 0, -27.1875 * 25.4), App.Rotation())
sketch8.addGeometry(Part.Circle(V(27.3, 1.3, 0), V(0, 0, 1), 1.9), False)
sketch8.addConstraint(Sketcher.Constraint("Diameter", 0, Q("0.15 in")))
sketch8.addConstraint(Sketcher.Constraint("DistanceX", -1, 1, 0, 3, Q("1.075 in")))
sketch8.addConstraint(Sketcher.Constraint("DistanceY", -1, 1, 0, 3, 1.318132))
pad8 = body2.newObject("PartDesign::Pad", "Pad007")
pad8.Profile = sketch8
pad8.Length = Q("54.5 in")
body3 = doc.addObject("PartDesign::Body", "Body002")

sketch9 = body3.newObject("Sketcher::SketchObject", "Sketch008")
sketch9.AttachmentSupport = (doc.getObject("YZ_Plane002"), [""])
sketch9.MapMode = "FlatFace"
sketch9.AttachmentOffset = App.Placement(V(0, 0, -27.1875 * 25.4), App.Rotation())
sketch9.addGeometry(Part.Circle(V(27.3, -49.2, 0), V(0, 0, 1), 1.9), False)
sketch9.addConstraint(Sketcher.Constraint("Diameter", 0, Q("0.15 in")))
sketch9.addConstraint(Sketcher.Constraint("DistanceX", -1, 1, 0, 3, Q("1.075 in")))
sketch9.addConstraint(Sketcher.Constraint("DistanceY", 0, 3, -1, 1, 49.227868))
pad9 = body3.newObject("PartDesign::Pad", "Pad008")
pad9.Profile = sketch9
pad9.Length = Q("54.5 in")
body4 = doc.addObject("PartDesign::Body", "Body003")

sketch10 = body4.newObject("Sketcher::SketchObject", "Sketch009")
sketch10.AttachmentSupport = (doc.getObject("YZ_Plane003"), [""])
sketch10.MapMode = "FlatFace"
sketch10.AttachmentOffset = App.Placement(V(0, 0, -27.1875 * 25.4), App.Rotation())
sketch10.addGeometry(Part.Circle(V(27.3, -99.8, 0), V(0, 0, 1), 1.9), False)
sketch10.addConstraint(Sketcher.Constraint("Diameter", 0, Q("0.15 in")))
sketch10.addConstraint(Sketcher.Constraint("DistanceX", -1, 1, 0, 3, Q("1.075 in")))
sketch10.addConstraint(Sketcher.Constraint("DistanceY", 0, 3, -1, 1, 99.773868))
pad10 = body4.newObject("PartDesign::Pad", "Pad009")
pad10.Profile = sketch10
pad10.Length = Q("54.5 in")
body5 = doc.addObject("PartDesign::Body", "Body004")

sketch11 = body5.newObject("Sketcher::SketchObject", "Sketch010")
sketch11.AttachmentSupport = (doc.getObject("YZ_Plane004"), [""])
sketch11.MapMode = "FlatFace"
sketch11.AttachmentOffset = App.Placement(V(0, 0, -27.1875 * 25.4), App.Rotation())
sketch11.addGeometry(Part.Circle(V(27.3, -150.3, 0), V(0, 0, 1), 1.9), False)
sketch11.addConstraint(Sketcher.Constraint("Diameter", 0, Q("0.15 in")))
sketch11.addConstraint(Sketcher.Constraint("DistanceX", -1, 1, 0, 3, Q("1.075 in")))
sketch11.addConstraint(Sketcher.Constraint("DistanceY", 0, 3, -1, 1, 150.319868))
pad11 = body5.newObject("PartDesign::Pad", "Pad010")
pad11.Profile = sketch11
pad11.Length = Q("54.5 in")
body6 = doc.addObject("PartDesign::Body", "Body005")

sketch12 = body6.newObject("Sketcher::SketchObject", "Sketch011")
sketch12.AttachmentSupport = (doc.getObject("YZ_Plane005"), [""])
sketch12.MapMode = "FlatFace"
sketch12.AttachmentOffset = App.Placement(V(0, 0, -27.1875 * 25.4), App.Rotation())
sketch12.addGeometry(Part.Circle(V(27.3, -200.9, 0), V(0, 0, 1), 1.9), False)
sketch12.addConstraint(Sketcher.Constraint("Diameter", 0, Q("0.15 in")))
sketch12.addConstraint(Sketcher.Constraint("DistanceX", -1, 1, 0, 3, Q("1.075 in")))
sketch12.addConstraint(Sketcher.Constraint("DistanceY", 0, 3, -1, 1, 200.865868))
pad12 = body6.newObject("PartDesign::Pad", "Pad011")
pad12.Profile = sketch12
pad12.Length = Q("54.5 in")
body7 = doc.addObject("PartDesign::Body", "Body006")

sketch13 = body7.newObject("Sketcher::SketchObject", "Sketch012")
sketch13.AttachmentSupport = (doc.getObject("YZ_Plane006"), [""])
sketch13.MapMode = "FlatFace"
sketch13.AttachmentOffset = App.Placement(V(0, 0, -27.1875 * 25.4), App.Rotation())
sketch13.addGeometry(Part.Circle(V(27.3, 51.9, 0), V(0, 0, 1), 1.9), False)
sketch13.addConstraint(Sketcher.Constraint("Diameter", 0, Q("0.15 in")))
sketch13.addConstraint(Sketcher.Constraint("DistanceX", -1, 1, 0, 3, Q("1.075 in")))
sketch13.addConstraint(Sketcher.Constraint("DistanceY", -1, 1, 0, 3, 51.864132))
pad13 = body7.newObject("PartDesign::Pad", "Pad012")
pad13.Profile = sketch13
pad13.Length = Q("54.5 in")
body8 = doc.addObject("PartDesign::Body", "Body007")

sketch14 = body8.newObject("Sketcher::SketchObject", "Sketch013")
sketch14.AttachmentSupport = (doc.getObject("YZ_Plane007"), [""])
sketch14.MapMode = "FlatFace"
sketch14.AttachmentOffset = App.Placement(V(0, 0, -27.1875 * 25.4), App.Rotation())
sketch14.addGeometry(Part.Circle(V(27.3, 102.4, 0), V(0, 0, 1), 1.9), False)
sketch14.addConstraint(Sketcher.Constraint("Diameter", 0, Q("0.15 in")))
sketch14.addConstraint(Sketcher.Constraint("DistanceX", -1, 1, 0, 3, Q("1.075 in")))
sketch14.addConstraint(Sketcher.Constraint("DistanceY", -1, 1, 0, 3, 102.410132))
pad14 = body8.newObject("PartDesign::Pad", "Pad013")
pad14.Profile = sketch14
pad14.Length = Q("54.5 in")
body9 = doc.addObject("PartDesign::Body", "Body008")

sketch15 = body9.newObject("Sketcher::SketchObject", "Sketch014")
sketch15.AttachmentSupport = (doc.getObject("YZ_Plane008"), [""])
sketch15.MapMode = "FlatFace"
sketch15.AttachmentOffset = App.Placement(V(0, 0, -27.1875 * 25.4), App.Rotation())
sketch15.addGeometry(Part.Circle(V(27.3, 153, 0), V(0, 0, 1), 1.9), False)
sketch15.addConstraint(Sketcher.Constraint("Diameter", 0, Q("0.15 in")))
sketch15.addConstraint(Sketcher.Constraint("DistanceX", -1, 1, 0, 3, Q("1.075 in")))
sketch15.addConstraint(Sketcher.Constraint("DistanceY", -1, 1, 0, 3, 152.956132))
pad15 = body9.newObject("PartDesign::Pad", "Pad014")
pad15.Profile = sketch15
pad15.Length = Q("54.5 in")
body10 = doc.addObject("PartDesign::Body", "Body009")

sketch16 = body10.newObject("Sketcher::SketchObject", "Sketch015")
sketch16.AttachmentSupport = (doc.getObject("YZ_Plane009"), [""])
sketch16.MapMode = "FlatFace"
sketch16.AttachmentOffset = App.Placement(V(0, 0, -27.1875 * 25.4), App.Rotation())
sketch16.addGeometry(Part.Circle(V(27.3, 203.5, 0), V(0, 0, 1), 1.9), False)
sketch16.addConstraint(Sketcher.Constraint("Diameter", 0, Q("0.15 in")))
sketch16.addConstraint(Sketcher.Constraint("DistanceX", -1, 1, 0, 3, Q("1.075 in")))
sketch16.addConstraint(Sketcher.Constraint("DistanceY", -1, 1, 0, 3, 203.502132))
pad16 = body10.newObject("PartDesign::Pad", "Pad015")
pad16.Profile = sketch16
pad16.Length = Q("54.5 in")

doc.recompute()
